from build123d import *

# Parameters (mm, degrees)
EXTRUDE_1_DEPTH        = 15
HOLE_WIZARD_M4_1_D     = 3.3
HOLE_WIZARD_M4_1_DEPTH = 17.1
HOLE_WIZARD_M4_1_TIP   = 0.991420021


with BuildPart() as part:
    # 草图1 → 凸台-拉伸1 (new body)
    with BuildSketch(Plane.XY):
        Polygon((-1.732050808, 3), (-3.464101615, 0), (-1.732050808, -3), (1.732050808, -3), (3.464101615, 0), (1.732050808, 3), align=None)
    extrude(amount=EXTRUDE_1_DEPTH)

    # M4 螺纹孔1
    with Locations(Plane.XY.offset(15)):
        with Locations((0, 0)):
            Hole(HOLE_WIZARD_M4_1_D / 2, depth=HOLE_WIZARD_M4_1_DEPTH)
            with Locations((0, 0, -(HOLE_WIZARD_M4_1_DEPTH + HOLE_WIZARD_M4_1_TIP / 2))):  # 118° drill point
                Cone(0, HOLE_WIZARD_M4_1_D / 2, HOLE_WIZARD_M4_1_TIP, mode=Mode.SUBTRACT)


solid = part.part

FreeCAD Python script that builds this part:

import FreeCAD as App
import Part
import Sketcher
Q = App.Units.Quantity

doc = App.newDocument("Part")
body = doc.addObject("PartDesign::Body", "Body")

sketch1 = body.newObject("Sketcher::SketchObject", "Sketch")
sketch1.AttachmentSupport = (doc.getObject("XY_Plane"), [""])
sketch1.MapMode = "FlatFace"
sketch1.addGeometry([
    Part.LineSegment(App.Vector(-1.732051, 3, 0), App.Vector(-3.464102, 0, 0)),
    Part.LineSegment(App.Vector(-3.464102, 0, 0), App.Vector(-1.732051, -3, 0)),
    Part.LineSegment(App.Vector(-1.732051, -3, 0), App.Vector(1.732051, -3, 0)),
    Part.LineSegment(App.Vector(1.732051, -3, 0), App.Vector(3.464102, 0, 0)),
    Part.LineSegment(App.Vector(3.464102, 0, 0), App.Vector(1.732051, 3, 0)),
    Part.LineSegment(App.Vector(1.732051, 3, 0), App.Vector(-1.732051, 3, 0)),
], False)
sketch1.addConstraint([
    Sketcher.Constraint("Coincident", 0, 2, 1, 1),
    Sketcher.Constraint("Coincident", 1, 2, 2, 1),
    Sketcher.Constraint("Coincident", 2, 2, 3, 1),
    Sketcher.Constraint("Coincident", 3, 2, 4, 1),
    Sketcher.Constraint("Coincident", 4, 2, 5, 1),
    Sketcher.Constraint("Coincident", 5, 2, 0, 1),
    Sketcher.Constraint("Horizontal", 2),
    Sketcher.Constraint("Horizontal", 5),
    Sketcher.Constraint("Symmetric", 0, 2, 3, 2, -1, 1),
    Sketcher.Constraint("Symmetric", 1, 2, 4, 2, -1, 1),
    Sketcher.Constraint("PointOnObject", 0, 2, -1),
    Sketcher.Constraint("Parallel", 0, 3),
    Sketcher.Constraint("Vertical", 2, 2, 4, 2),
    Sketcher.Constraint("Angle", 0, Q("-120 deg")),
    Sketcher.Constraint("DistanceY", 1, 2, -1, 1, Q("3 mm")),
    Sketcher.Constraint("DistanceX", 2, 1, 2, 2, Q("3.464102 mm")),
])
pad1 = body.newObject("PartDesign::Pad", "Pad")
pad1.Profile = sketch1
pad1.Length = 15

sketch2 = body.newObject("Sketcher::SketchObject", "Sketch001")
sketch2.AttachmentSupport = (doc.getObject("XY_Plane"), [""])
sketch2.MapMode = "FlatFace"
sketch2.AttachmentOffset = App.Placement(App.Vector(0, 0, 15), App.Rotation())
sketch2.addGeometry(Part.Circle(App.Vector(0, 0, 0), App.Vector(0, 0, 1), 1.65), False)
sketch2.addConstraint([
    Sketcher.Constraint("Coincident", 0, 3, -1, 1),
    Sketcher.Constraint("Diameter", 0, Q("3.3 mm")),
])
doc.recompute()
hole = body.newObject("PartDesign::Hole", "Hole")
hole.Profile = sketch2
hole.ThreadType = "None"
hole.Diameter = 3.3
hole.DepthType = "Dimension"
hole.Depth = 17.1
hole.DrillPoint = "Angled"
hole.DrillPointAngle = 118

doc.recompute()
